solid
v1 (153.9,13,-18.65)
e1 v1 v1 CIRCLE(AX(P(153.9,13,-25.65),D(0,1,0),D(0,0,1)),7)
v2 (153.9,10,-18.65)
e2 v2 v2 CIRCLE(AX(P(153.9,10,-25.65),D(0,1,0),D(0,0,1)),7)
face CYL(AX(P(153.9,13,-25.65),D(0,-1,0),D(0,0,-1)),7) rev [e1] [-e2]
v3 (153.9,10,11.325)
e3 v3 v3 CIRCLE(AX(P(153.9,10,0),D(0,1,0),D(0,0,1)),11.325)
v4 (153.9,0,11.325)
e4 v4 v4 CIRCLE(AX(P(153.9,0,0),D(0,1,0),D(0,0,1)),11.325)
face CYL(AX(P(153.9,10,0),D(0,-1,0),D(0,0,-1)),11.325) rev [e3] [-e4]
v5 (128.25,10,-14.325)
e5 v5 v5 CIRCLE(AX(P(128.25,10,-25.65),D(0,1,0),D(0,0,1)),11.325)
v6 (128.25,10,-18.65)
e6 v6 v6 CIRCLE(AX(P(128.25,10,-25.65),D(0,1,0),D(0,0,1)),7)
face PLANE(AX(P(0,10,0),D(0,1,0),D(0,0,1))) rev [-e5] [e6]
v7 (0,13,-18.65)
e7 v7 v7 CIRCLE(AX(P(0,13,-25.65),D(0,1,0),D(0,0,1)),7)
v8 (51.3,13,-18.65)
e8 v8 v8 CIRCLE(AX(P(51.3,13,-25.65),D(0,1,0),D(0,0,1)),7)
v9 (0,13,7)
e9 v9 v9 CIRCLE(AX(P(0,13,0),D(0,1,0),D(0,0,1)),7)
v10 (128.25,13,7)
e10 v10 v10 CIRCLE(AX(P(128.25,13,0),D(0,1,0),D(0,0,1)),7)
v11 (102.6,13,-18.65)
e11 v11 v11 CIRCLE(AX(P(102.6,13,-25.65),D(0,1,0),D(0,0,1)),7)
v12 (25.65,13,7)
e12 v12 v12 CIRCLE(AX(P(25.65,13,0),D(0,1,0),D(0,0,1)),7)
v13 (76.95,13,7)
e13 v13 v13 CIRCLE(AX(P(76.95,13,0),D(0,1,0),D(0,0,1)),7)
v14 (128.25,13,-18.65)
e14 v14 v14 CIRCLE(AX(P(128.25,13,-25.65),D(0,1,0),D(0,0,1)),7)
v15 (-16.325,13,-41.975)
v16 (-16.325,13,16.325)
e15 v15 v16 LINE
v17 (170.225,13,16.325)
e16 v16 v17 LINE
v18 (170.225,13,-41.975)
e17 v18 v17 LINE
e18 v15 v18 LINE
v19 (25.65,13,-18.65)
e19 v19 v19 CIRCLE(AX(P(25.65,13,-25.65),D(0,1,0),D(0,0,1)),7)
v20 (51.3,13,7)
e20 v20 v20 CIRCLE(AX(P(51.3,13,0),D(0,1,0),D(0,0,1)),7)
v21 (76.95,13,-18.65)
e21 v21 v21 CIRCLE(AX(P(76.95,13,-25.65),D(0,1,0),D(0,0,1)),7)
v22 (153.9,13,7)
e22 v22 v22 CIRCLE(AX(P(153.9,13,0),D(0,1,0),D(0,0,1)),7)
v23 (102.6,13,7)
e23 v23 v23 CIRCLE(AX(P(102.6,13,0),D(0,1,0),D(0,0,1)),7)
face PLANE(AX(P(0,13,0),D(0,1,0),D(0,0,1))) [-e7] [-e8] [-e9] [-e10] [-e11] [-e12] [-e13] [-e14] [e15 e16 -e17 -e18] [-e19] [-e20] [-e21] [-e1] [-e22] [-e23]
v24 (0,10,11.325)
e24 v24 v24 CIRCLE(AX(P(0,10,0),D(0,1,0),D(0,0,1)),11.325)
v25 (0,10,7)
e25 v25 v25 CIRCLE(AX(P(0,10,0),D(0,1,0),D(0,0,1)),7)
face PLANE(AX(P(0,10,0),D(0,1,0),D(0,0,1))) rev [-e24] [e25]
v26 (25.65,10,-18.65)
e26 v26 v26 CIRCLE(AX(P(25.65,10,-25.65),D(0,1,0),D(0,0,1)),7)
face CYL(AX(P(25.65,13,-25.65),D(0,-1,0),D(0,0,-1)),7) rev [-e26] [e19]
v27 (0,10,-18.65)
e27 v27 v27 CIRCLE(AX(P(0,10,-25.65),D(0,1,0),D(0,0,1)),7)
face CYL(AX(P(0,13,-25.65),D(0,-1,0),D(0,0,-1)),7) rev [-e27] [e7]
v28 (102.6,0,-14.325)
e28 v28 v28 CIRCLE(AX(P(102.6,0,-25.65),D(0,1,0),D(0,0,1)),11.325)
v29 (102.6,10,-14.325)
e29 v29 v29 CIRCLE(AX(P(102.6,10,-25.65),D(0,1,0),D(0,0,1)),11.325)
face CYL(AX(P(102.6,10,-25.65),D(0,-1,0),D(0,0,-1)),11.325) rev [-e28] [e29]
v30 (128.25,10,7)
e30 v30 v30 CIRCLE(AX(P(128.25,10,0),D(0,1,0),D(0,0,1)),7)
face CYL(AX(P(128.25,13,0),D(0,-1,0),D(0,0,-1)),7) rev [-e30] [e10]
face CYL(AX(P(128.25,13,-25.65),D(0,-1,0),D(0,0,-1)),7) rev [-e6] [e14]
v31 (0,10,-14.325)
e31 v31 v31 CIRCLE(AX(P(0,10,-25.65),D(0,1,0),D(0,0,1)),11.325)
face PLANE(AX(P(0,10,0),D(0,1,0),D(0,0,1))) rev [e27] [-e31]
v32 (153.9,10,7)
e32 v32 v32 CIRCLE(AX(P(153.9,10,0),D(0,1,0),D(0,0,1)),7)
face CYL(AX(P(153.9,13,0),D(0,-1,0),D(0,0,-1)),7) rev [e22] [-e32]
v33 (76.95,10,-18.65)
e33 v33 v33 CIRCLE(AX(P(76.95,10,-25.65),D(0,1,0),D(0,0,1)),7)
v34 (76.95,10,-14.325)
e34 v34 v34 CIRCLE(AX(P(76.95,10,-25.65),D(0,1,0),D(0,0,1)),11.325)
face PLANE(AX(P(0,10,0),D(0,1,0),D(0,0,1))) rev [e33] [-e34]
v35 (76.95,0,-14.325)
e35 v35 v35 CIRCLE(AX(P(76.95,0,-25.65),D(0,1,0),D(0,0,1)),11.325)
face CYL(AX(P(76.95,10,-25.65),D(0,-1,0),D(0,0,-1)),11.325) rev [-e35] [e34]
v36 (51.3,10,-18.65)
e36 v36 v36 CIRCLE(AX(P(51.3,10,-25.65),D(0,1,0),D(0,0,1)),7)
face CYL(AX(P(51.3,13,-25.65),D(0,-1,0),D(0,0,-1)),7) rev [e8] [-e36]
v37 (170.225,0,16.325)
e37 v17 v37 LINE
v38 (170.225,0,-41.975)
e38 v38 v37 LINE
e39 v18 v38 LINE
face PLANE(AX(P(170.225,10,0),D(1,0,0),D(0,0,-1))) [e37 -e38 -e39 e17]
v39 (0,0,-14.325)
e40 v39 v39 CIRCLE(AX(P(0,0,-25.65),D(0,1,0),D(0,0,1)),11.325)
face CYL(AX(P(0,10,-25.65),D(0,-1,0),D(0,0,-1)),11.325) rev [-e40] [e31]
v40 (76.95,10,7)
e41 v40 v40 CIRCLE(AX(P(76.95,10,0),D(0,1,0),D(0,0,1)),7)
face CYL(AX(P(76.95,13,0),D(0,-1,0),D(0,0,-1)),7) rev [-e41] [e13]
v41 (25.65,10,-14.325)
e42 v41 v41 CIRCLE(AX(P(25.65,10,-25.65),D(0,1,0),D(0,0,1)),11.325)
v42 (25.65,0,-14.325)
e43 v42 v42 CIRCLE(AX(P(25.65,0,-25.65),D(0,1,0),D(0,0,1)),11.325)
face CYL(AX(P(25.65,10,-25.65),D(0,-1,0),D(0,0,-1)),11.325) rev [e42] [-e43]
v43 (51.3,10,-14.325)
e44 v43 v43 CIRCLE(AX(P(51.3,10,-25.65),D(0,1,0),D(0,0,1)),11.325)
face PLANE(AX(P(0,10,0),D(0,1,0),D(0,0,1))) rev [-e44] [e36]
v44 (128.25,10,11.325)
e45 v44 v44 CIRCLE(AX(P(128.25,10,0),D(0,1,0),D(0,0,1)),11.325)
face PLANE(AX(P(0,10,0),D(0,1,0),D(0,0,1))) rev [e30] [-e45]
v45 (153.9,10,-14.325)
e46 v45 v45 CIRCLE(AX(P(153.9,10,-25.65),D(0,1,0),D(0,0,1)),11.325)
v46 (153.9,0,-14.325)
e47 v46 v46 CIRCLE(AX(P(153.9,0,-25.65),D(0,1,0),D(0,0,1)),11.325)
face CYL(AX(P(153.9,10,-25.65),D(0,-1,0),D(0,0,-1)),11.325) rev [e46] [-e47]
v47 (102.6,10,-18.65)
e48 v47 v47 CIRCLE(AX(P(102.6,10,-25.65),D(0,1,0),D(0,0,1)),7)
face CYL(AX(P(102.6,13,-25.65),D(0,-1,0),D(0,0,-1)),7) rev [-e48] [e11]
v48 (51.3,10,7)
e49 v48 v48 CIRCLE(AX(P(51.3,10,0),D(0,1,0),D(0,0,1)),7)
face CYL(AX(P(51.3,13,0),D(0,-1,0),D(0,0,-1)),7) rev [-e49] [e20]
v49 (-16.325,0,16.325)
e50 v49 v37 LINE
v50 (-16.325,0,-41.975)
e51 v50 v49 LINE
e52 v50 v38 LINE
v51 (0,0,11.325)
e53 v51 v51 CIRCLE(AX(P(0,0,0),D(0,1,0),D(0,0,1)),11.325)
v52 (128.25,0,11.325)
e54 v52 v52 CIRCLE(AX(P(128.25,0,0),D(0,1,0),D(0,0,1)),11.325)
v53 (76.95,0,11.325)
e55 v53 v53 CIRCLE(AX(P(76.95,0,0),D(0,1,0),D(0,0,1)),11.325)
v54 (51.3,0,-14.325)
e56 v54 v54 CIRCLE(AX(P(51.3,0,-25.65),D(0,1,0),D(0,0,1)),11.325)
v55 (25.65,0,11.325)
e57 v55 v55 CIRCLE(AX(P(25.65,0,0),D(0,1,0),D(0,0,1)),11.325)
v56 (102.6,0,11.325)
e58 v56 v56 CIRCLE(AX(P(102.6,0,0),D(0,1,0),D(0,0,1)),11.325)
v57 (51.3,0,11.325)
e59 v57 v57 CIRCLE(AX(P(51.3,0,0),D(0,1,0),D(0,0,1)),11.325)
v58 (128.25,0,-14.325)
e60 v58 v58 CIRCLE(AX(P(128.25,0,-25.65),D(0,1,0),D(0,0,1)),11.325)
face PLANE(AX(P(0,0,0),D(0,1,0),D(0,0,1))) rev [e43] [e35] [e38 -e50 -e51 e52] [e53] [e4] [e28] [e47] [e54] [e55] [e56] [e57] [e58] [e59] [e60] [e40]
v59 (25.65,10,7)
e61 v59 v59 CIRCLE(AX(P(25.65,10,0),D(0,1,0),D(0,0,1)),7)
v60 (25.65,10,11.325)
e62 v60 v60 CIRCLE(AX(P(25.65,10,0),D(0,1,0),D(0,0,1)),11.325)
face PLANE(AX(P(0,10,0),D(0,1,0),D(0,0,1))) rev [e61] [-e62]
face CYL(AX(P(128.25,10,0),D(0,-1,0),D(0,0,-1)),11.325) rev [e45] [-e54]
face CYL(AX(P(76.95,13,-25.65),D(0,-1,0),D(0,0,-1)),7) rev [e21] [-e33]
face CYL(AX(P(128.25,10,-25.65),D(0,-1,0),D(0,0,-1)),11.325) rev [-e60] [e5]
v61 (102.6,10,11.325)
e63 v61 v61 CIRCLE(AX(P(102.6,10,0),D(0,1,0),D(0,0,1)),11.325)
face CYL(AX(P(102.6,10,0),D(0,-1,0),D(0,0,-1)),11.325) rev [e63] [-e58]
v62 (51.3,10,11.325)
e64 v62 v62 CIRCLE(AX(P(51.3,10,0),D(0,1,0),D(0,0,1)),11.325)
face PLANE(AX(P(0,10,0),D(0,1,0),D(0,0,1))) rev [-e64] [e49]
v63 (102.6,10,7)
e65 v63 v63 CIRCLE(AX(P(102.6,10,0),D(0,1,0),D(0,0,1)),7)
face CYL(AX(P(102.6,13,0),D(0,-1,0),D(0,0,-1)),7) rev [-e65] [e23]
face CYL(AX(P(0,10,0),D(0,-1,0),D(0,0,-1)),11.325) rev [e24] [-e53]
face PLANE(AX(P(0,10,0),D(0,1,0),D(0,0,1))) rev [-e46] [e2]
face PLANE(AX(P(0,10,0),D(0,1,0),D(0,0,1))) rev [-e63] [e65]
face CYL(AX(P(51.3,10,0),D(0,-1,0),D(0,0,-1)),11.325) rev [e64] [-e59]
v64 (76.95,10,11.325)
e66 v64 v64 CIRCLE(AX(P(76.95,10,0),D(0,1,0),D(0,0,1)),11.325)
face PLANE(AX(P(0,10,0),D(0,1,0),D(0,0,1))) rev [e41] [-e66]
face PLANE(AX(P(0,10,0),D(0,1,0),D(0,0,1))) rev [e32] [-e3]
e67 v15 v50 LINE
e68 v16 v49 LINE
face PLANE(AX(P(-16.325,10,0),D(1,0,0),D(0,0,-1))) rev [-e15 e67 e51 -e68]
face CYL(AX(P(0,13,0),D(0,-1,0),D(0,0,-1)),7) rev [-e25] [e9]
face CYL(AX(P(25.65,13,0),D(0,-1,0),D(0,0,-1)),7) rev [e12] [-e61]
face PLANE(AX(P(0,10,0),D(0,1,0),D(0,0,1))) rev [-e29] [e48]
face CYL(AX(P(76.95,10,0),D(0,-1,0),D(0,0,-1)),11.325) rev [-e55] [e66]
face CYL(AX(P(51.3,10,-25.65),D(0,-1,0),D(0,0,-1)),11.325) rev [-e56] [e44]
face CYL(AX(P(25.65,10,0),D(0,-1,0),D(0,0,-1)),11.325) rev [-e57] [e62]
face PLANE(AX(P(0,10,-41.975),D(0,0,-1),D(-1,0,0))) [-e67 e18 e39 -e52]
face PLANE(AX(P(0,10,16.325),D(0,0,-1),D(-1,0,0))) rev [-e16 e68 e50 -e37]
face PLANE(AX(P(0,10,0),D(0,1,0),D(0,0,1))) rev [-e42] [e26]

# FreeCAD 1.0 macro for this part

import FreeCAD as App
import Part
import Sketcher
from FreeCAD import Vector
Q = App.Units.Quantity

doc = App.newDocument("Part")
params = doc.addObject("Spreadsheet::Sheet", "Params")
for row, (alias, value) in enumerate([
    ("sketch1_diameter", "22.65 mm"),
    ("sketch1_height", "58.3 mm"),
    ("sketch1_width", "186.55 mm"),
    ("pad1_length", "10 mm"),
    ("sketch2_diameter", "14 mm"),
    ("sketch2_height", "58.3 mm"),
    ("sketch2_width", "186.55 mm"),
    ("pad2_length", "3 mm"),
], start=1):
    params.set(f"A{row}", alias)
    params.set(f"B{row}", "=" + value)
    params.setAlias(f"B{row}", alias)

body = doc.addObject("PartDesign::Body", "Body")

# Sketch on XZ plane
sketch1 = doc.addObject("Sketcher::SketchObject", "Sketch")
body.addObject(sketch1)
sketch1.AttachmentSupport = (doc.XZ_Plane, [""])
sketch1.MapMode = "FlatFace"
sketch1.addGeometry([
    Part.LineSegment(Vector(-16, -42, 0), Vector(-16, 16, 0)),  # 0
    Part.LineSegment(Vector(-16, 16, 0), Vector(170, 16, 0)),  # 1
    Part.LineSegment(Vector(170, 16, 0), Vector(170, -42, 0)),  # 2
    Part.LineSegment(Vector(170, -42, 0), Vector(-16, -42, 0)),  # 3
    Part.Circle(Vector(0, 0, 0), Vector(0, 0, 1), 11),  # 4
    Part.Circle(Vector(26, 0, 0), Vector(0, 0, 1), 11),  # 5
    Part.Circle(Vector(51, 0, 0), Vector(0, 0, 1), 11),  # 6
    Part.Circle(Vector(77, 0, 0), Vector(0, 0, 1), 11),  # 7
    Part.Circle(Vector(103, 0, 0), Vector(0, 0, 1), 11),  # 8
    Part.Circle(Vector(128, 0, 0), Vector(0, 0, 1), 11),  # 9
    Part.Circle(Vector(154, 0, 0), Vector(0, 0, 1), 11),  # 10
    Part.Circle(Vector(0, -26, 0), Vector(0, 0, 1), 11),  # 11
    Part.Circle(Vector(26, -26, 0), Vector(0, 0, 1), 11),  # 12
    Part.Circle(Vector(51, -26, 0), Vector(0, 0, 1), 11),  # 13
    Part.Circle(Vector(77, -26, 0), Vector(0, 0, 1), 11),  # 14
    Part.Circle(Vector(103, -26, 0), Vector(0, 0, 1), 11),  # 15
    Part.Circle(Vector(128, -26, 0), Vector(0, 0, 1), 11),  # 16
    Part.Circle(Vector(154, -26, 0), Vector(0, 0, 1), 11),  # 17
], False)
sketch1.addConstraint([
    Sketcher.Constraint("Coincident", 0, 2, 1, 1),
    Sketcher.Constraint("Coincident", 1, 2, 2, 1),
    Sketcher.Constraint("Coincident", 2, 2, 3, 1),
    Sketcher.Constraint("Coincident", 3, 2, 0, 1),
    Sketcher.Constraint("Vertical", 0),
    Sketcher.Constraint("Horizontal", 1),
    Sketcher.Constraint("Vertical", 2),
    Sketcher.Constraint("Horizontal", 3),
    Sketcher.Constraint("Coincident", 4, 3, -1, 1),
    Sketcher.Constraint("Equal", 4, 5),
    Sketcher.Constraint("Equal", 5, 6),
    Sketcher.Constraint("Equal", 6, 7),
    Sketcher.Constraint("Equal", 7, 8),
    Sketcher.Constraint("Equal", 8, 9),
    Sketcher.Constraint("Equal", 9, 10),
    Sketcher.Constraint("Equal", 10, 11),
    Sketcher.Constraint("Equal", 11, 12),
    Sketcher.Constraint("Equal", 12, 13),
    Sketcher.Constraint("Equal", 13, 14),
    Sketcher.Constraint("Equal", 14, 15),
    Sketcher.Constraint("Equal", 15, 16),
    Sketcher.Constraint("Equal", 16, 17),
    Sketcher.Constraint("PointOnObject", 5, 3, -1),
    Sketcher.Constraint("PointOnObject", 6, 3, -1),
    Sketcher.Constraint("PointOnObject", 7, 3, -1),
    Sketcher.Constraint("PointOnObject", 8, 3, -1),
    Sketcher.Constraint("PointOnObject", 9, 3, -1),
    Sketcher.Constraint("PointOnObject", 10, 3, -1),
    Sketcher.Constraint("PointOnObject", 11, 3, -2),
    Sketcher.Constraint("Horizontal", 11, 3, 12, 3),
    Sketcher.Constraint("Horizontal", 12, 3, 13, 3),
    Sketcher.Constraint("Horizontal", 13, 3, 14, 3),
    Sketcher.Constraint("Horizontal", 14, 3, 15, 3),
    Sketcher.Constraint("Horizontal", 15, 3, 16, 3),
    Sketcher.Constraint("Horizontal", 16, 3, 17, 3),
    Sketcher.Constraint("Vertical", 5, 3, 12, 3),
    Sketcher.Constraint("Vertical", 6, 3, 13, 3),
    Sketcher.Constraint("Vertical", 7, 3, 14, 3),
    Sketcher.Constraint("Vertical", 8, 3, 15, 3),
    Sketcher.Constraint("Vertical", 9, 3, 16, 3),
    Sketcher.Constraint("Vertical", 10, 3, 17, 3),
    Sketcher.Constraint("Diameter", 4, Q("22.65 mm")),
    Sketcher.Constraint("DistanceY", 0, 1, 0, 2, Q("58.3 mm")),
    Sketcher.Constraint("DistanceX", 1, 1, 1, 2, Q("186.55 mm")),
    Sketcher.Constraint("DistanceX", -1, 1, 6, 3, Q("51.3 mm")),
    Sketcher.Constraint("DistanceX", -1, 1, 8, 3, Q("102.6 mm")),
    Sketcher.Constraint("DistanceX", -1, 1, 10, 3, Q("153.9 mm")),
    Sketcher.Constraint("DistanceX", 5, 3, 7, 3, Q("51.3 mm")),
    Sketcher.Constraint("DistanceX", 7, 3, 9, 3, Q("51.3 mm")),
    Sketcher.Constraint("DistanceX", -1, 1, 5, 3, Q("25.65 mm")),
    Sketcher.Constraint("DistanceY", 11, 3, -1, 1, Q("25.65 mm")),
    Sketcher.Constraint("DistanceX", 0, 2, -1, 1, Q("16.325 mm")),
    Sketcher.Constraint("DistanceY", -1, 1, 0, 2, Q("16.325 mm")),
])
sketch1.setExpression("Constraints[41]", "Params.sketch1_diameter")
sketch1.setExpression("Constraints[42]", "Params.sketch1_height")
sketch1.setExpression("Constraints[43]", "Params.sketch1_width")
pad1 = doc.addObject("PartDesign::Pad", "Pad")
body.addObject(pad1)
pad1.Profile = sketch1
pad1.setExpression("Length", "Params.pad1_length")
pad1.Reversed = True

# Sketch on XZ plane
sketch2 = doc.addObject("Sketcher::SketchObject", "Sketch001")
body.addObject(sketch2)
sketch2.AttachmentSupport = (doc.XZ_Plane, [""])
sketch2.MapMode = "FlatFace"
sketch2.AttachmentOffset = App.Placement(Vector(0, 0, -10), App.Rotation())
sketch2.addGeometry([
    Part.LineSegment(Vector(-16, -42, 0), Vector(-16, 16, 0)),  # 0
    Part.LineSegment(Vector(-16, 16, 0), Vector(170, 16, 0)),  # 1
    Part.LineSegment(Vector(170, 16, 0), Vector(170, -42, 0)),  # 2
    Part.LineSegment(Vector(170, -42, 0), Vector(-16, -42, 0)),  # 3
    Part.Circle(Vector(0, 0, 0), Vector(0, 0, 1), 7),  # 4
    Part.Circle(Vector(26, 0, 0), Vector(0, 0, 1), 7),  # 5
    Part.Circle(Vector(51, 0, 0), Vector(0, 0, 1), 7),  # 6
    Part.Circle(Vector(77, 0, 0), Vector(0, 0, 1), 7),  # 7
    Part.Circle(Vector(103, 0, 0), Vector(0, 0, 1), 7),  # 8
    Part.Circle(Vector(128, 0, 0), Vector(0, 0, 1), 7),  # 9
    Part.Circle(Vector(154, 0, 0), Vector(0, 0, 1), 7),  # 10
    Part.Circle(Vector(0, -26, 0), Vector(0, 0, 1), 7),  # 11
    Part.Circle(Vector(26, -26, 0), Vector(0, 0, 1), 7),  # 12
    Part.Circle(Vector(51, -26, 0), Vector(0, 0, 1), 7),  # 13
    Part.Circle(Vector(77, -26, 0), Vector(0, 0, 1), 7),  # 14
    Part.Circle(Vector(103, -26, 0), Vector(0, 0, 1), 7),  # 15
    Part.Circle(Vector(128, -26, 0), Vector(0, 0, 1), 7),  # 16
    Part.Circle(Vector(154, -26, 0), Vector(0, 0, 1), 7),  # 17
], False)
sketch2.addConstraint([
    Sketcher.Constraint("Coincident", 0, 2, 1, 1),
    Sketcher.Constraint("Coincident", 1, 2, 2, 1),
    Sketcher.Constraint("Coincident", 2, 2, 3, 1),
    Sketcher.Constraint("Coincident", 3, 2, 0, 1),
    Sketcher.Constraint("Vertical", 0),
    Sketcher.Constraint("Horizontal", 1),
    Sketcher.Constraint("Vertical", 2),
    Sketcher.Constraint("Horizontal", 3),
    Sketcher.Constraint("Coincident", 4, 3, -1, 1),
    Sketcher.Constraint("Equal", 4, 5),
    Sketcher.Constraint("Equal", 5, 6),
    Sketcher.Constraint("Equal", 6, 7),
    Sketcher.Constraint("Equal", 7, 8),
    Sketcher.Constraint("Equal", 8, 9),
    Sketcher.Constraint("Equal", 9, 10),
    Sketcher.Constraint("Equal", 10, 11),
    Sketcher.Constraint("Equal", 11, 12),
    Sketcher.Constraint("Equal", 12, 13),
    Sketcher.Constraint("Equal", 13, 14),
    Sketcher.Constraint("Equal", 14, 15),
    Sketcher.Constraint("Equal", 15, 16),
    Sketcher.Constraint("Equal", 16, 17),
    Sketcher.Constraint("PointOnObject", 5, 3, -1),
    Sketcher.Constraint("PointOnObject", 6, 3, -1),
    Sketcher.Constraint("PointOnObject", 7, 3, -1),
    Sketcher.Constraint("PointOnObject", 8, 3, -1),
    Sketcher.Constraint("PointOnObject", 9, 3, -1),
    Sketcher.Constraint("PointOnObject", 10, 3, -1),
    Sketcher.Constraint("PointOnObject", 11, 3, -2),
    Sketcher.Constraint("Horizontal", 11, 3, 12, 3),
    Sketcher.Constraint("Horizontal", 12, 3, 13, 3),
    Sketcher.Constraint("Horizontal", 13, 3, 14, 3),
    Sketcher.Constraint("Horizontal", 14, 3, 15, 3),
    Sketcher.Constraint("Horizontal", 15, 3, 16, 3),
    Sketcher.Constraint("Horizontal", 16, 3, 17, 3),
    Sketcher.Constraint("Vertical", 5, 3, 12, 3),
    Sketcher.Constraint("Vertical", 6, 3, 13, 3),
    Sketcher.Constraint("Vertical", 7, 3, 14, 3),
    Sketcher.Constraint("Vertical", 8, 3, 15, 3),
    Sketcher.Constraint("Vertical", 9, 3, 16, 3),
    Sketcher.Constraint("Vertical", 10, 3, 17, 3),
    Sketcher.Constraint("Diameter", 4, Q("14 mm")),
    Sketcher.Constraint("DistanceY", 0, 1, 0, 2, Q("58.3 mm")),
    Sketcher.Constraint("DistanceX", 1, 1, 1, 2, Q("186.55 mm")),
    Sketcher.Constraint("DistanceX", -1, 1, 6, 3, Q("51.3 mm")),
    Sketcher.Constraint("DistanceX", -1, 1, 8, 3, Q("102.6 mm")),
    Sketcher.Constraint("DistanceX", -1, 1, 10, 3, Q("153.9 mm")),
    Sketcher.Constraint("DistanceX", 5, 3, 7, 3, Q("51.3 mm")),
    Sketcher.Constraint("DistanceX", 7, 3, 9, 3, Q("51.3 mm")),
    Sketcher.Constraint("DistanceX", -1, 1, 5, 3, Q("25.65 mm")),
    Sketcher.Constraint("DistanceY", 11, 3, -1, 1, Q("25.65 mm")),
    Sketcher.Constraint("DistanceX", 0, 2, -1, 1, Q("16.325 mm")),
    Sketcher.Constraint("DistanceY", -1, 1, 0, 2, Q("16.325 mm")),
])
sketch2.setExpression("Constraints[41]", "Params.sketch2_diameter")
sketch2.setExpression("Constraints[42]", "Params.sketch2_height")
sketch2.setExpression("Constraints[43]", "Params.sketch2_width")
pad2 = doc.addObject("PartDesign::Pad", "Pad001")
body.addObject(pad2)
pad2.Profile = sketch2
pad2.setExpression("Length", "Params.pad2_length")
pad2.Reversed = True

doc.recompute()
